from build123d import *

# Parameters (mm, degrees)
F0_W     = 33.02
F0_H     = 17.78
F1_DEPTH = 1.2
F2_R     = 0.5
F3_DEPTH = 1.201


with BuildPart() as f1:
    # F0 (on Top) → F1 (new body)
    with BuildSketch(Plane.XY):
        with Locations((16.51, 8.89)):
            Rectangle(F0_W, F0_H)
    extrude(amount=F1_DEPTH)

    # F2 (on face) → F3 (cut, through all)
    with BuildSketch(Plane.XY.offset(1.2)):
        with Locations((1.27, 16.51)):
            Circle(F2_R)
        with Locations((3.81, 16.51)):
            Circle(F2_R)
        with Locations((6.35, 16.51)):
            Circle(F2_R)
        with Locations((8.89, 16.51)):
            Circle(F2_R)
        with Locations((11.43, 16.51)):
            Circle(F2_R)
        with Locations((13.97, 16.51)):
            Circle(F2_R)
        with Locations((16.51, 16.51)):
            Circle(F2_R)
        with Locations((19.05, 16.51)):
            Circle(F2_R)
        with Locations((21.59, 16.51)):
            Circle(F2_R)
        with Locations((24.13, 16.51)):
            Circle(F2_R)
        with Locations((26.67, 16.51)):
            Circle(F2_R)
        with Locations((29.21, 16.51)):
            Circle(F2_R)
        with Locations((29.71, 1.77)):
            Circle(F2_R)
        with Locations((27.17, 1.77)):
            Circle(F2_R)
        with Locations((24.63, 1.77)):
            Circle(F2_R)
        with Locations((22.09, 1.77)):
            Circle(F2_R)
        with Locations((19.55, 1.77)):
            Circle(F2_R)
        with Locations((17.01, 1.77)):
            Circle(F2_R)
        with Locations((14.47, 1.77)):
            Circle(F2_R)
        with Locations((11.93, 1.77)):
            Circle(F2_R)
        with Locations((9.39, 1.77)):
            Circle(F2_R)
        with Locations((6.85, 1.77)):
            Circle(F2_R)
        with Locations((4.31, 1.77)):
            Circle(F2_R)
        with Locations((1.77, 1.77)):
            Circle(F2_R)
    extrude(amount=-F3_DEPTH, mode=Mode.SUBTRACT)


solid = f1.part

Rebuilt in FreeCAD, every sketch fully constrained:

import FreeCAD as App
import Part
import Sketcher


def add_polygon(sketch, points):
    """Adds a closed chain of lines whose ends are joined by coincident constraints."""
    first, n = sketch.GeometryCount, len(points)
    for a, b in zip(points, points[1:] + points[:1]):
        sketch.addGeometry(Part.LineSegment(App.Vector(*a, 0), App.Vector(*b, 0)), False)
    for i in range(n):
        sketch.addConstraint(Sketcher.Constraint("Coincident", first + i, 2, first + (i + 1) % n, 1))

doc = App.newDocument("Part")
body = doc.addObject("PartDesign::Body", "Body")

# Sketch on XY plane
sketch1 = body.newObject("Sketcher::SketchObject", "Sketch")
sketch1.AttachmentSupport = (doc.getObject("XY_Plane"), [""])
sketch1.MapMode = "FlatFace"
add_polygon(sketch1, [(0, 18), (0, 0), (33, 0), (33, 18)])  # lines 0-3
sketch1.addConstraint([
    Sketcher.Constraint("Vertical", 0),
    Sketcher.Constraint("Horizontal", 1),
    Sketcher.Constraint("Vertical", 2),
    Sketcher.Constraint("Horizontal", 3),
    Sketcher.Constraint("Coincident", 0, 2, -1, 1),
    Sketcher.Constraint("DistanceX", 1, 1, 1, 2, 33.02),
    Sketcher.Constraint("DistanceY", 0, 2, 0, 1, 17.78),
])
pad1 = body.newObject("PartDesign::Pad", "Pad")
pad1.Profile = sketch1
pad1.Length = 1.2

# Sketch on XY plane
sketch2 = body.newObject("Sketcher::SketchObject", "Sketch001")
sketch2.AttachmentSupport = (doc.getObject("XY_Plane"), [""])
sketch2.MapMode = "FlatFace"
sketch2.AttachmentOffset = App.Placement(App.Vector(0, 0, 1.2), App.Rotation())
sketch2.addGeometry([
    Part.Circle(App.Vector(1.3, 16.5, 0), App.Vector(0, 0, 1), 0.5),  # 0
    Part.Circle(App.Vector(3.8, 16.5, 0), App.Vector(0, 0, 1), 0.5),  # 1
    Part.Circle(App.Vector(6.3, 16.5, 0), App.Vector(0, 0, 1), 0.5),  # 2
    Part.Circle(App.Vector(8.9, 16.5, 0), App.Vector(0, 0, 1), 0.5),  # 3
    Part.Circle(App.Vector(11.4, 16.5, 0), App.Vector(0, 0, 1), 0.5),  # 4
    Part.Circle(App.Vector(14, 16.5, 0), App.Vector(0, 0, 1), 0.5),  # 5
    Part.Circle(App.Vector(16.5, 16.5, 0), App.Vector(0, 0, 1), 0.5),  # 6
    Part.Circle(App.Vector(19.1, 16.5, 0), App.Vector(0, 0, 1), 0.5),  # 7
    Part.Circle(App.Vector(21.6, 16.5, 0), App.Vector(0, 0, 1), 0.5),  # 8
    Part.Circle(App.Vector(24.1, 16.5, 0), App.Vector(0, 0, 1), 0.5),  # 9
    Part.Circle(App.Vector(26.7, 16.5, 0), App.Vector(0, 0, 1), 0.5),  # 10
    Part.Circle(App.Vector(29.2, 16.5, 0), App.Vector(0, 0, 1), 0.5),  # 11
    Part.Circle(App.Vector(29.7, 1.8, 0), App.Vector(0, 0, 1), 0.5),  # 12
    Part.Circle(App.Vector(27.2, 1.8, 0), App.Vector(0, 0, 1), 0.5),  # 13
    Part.Circle(App.Vector(24.6, 1.8, 0), App.Vector(0, 0, 1), 0.5),  # 14
    Part.Circle(App.Vector(22.1, 1.8, 0), App.Vector(0, 0, 1), 0.5),  # 15
    Part.Circle(App.Vector(19.6, 1.8, 0), App.Vector(0, 0, 1), 0.5),  # 16
    Part.Circle(App.Vector(17, 1.8, 0), App.Vector(0, 0, 1), 0.5),  # 17
    Part.Circle(App.Vector(14.5, 1.8, 0), App.Vector(0, 0, 1), 0.5),  # 18
    Part.Circle(App.Vector(11.9, 1.8, 0), App.Vector(0, 0, 1), 0.5),  # 19
    Part.Circle(App.Vector(9.4, 1.8, 0), App.Vector(0, 0, 1), 0.5),  # 20
    Part.Circle(App.Vector(6.8, 1.8, 0), App.Vector(0, 0, 1), 0.5),  # 21
    Part.Circle(App.Vector(4.3, 1.8, 0), App.Vector(0, 0, 1), 0.5),  # 22
    Part.Circle(App.Vector(1.8, 1.8, 0), App.Vector(0, 0, 1), 0.5),  # 23
], False)
sketch2.addConstraint([
    Sketcher.Constraint("Equal", 0, 1),
    Sketcher.Constraint("Equal", 1, 2),
    Sketcher.Constraint("Equal", 2, 3),
    Sketcher.Constraint("Equal", 3, 4),
    Sketcher.Constraint("Equal", 4, 5),
    Sketcher.Constraint("Equal", 5, 6),
    Sketcher.Constraint("Equal", 6, 7),
    Sketcher.Constraint("Equal", 7, 8),
    Sketcher.Constraint("Equal", 8, 9),
    Sketcher.Constraint("Equal", 9, 10),
    Sketcher.Constraint("Equal", 10, 11),
    Sketcher.Constraint("Equal", 11, 12),
    Sketcher.Constraint("Equal", 12, 13),
    Sketcher.Constraint("Equal", 13, 14),
    Sketcher.Constraint("Equal", 14, 15),
    Sketcher.Constraint("Equal", 15, 16),
    Sketcher.Constraint("Equal", 16, 17),
    Sketcher.Constraint("Equal", 17, 18),
    Sketcher.Constraint("Equal", 18, 19),
    Sketcher.Constraint("Equal", 19, 20),
    Sketcher.Constraint("Equal", 20, 21),
    Sketcher.Constraint("Equal", 21, 22),
    Sketcher.Constraint("Equal", 22, 23),
    Sketcher.Constraint("Horizontal", 0, 3, 1, 3),
    Sketcher.Constraint("Horizontal", 1, 3, 2, 3),
    Sketcher.Constraint("Horizontal", 2, 3, 3, 3),
    Sketcher.Constraint("Horizontal", 3, 3, 4, 3),
    Sketcher.Constraint("Horizontal", 4, 3, 5, 3),
    Sketcher.Constraint("Horizontal", 5, 3, 6, 3),
    Sketcher.Constraint("Horizontal", 6, 3, 7, 3),
    Sketcher.Constraint("Horizontal", 7, 3, 8, 3),
    Sketcher.Constraint("Horizontal", 8, 3, 9, 3),
    Sketcher.Constraint("Horizontal", 9, 3, 10, 3),
    Sketcher.Constraint("Horizontal", 10, 3, 11, 3),
    Sketcher.Constraint("Horizontal", 12, 3, 13, 3),
    Sketcher.Constraint("Horizontal", 13, 3, 14, 3),
    Sketcher.Constraint("Horizontal", 14, 3, 15, 3),
    Sketcher.Constraint("Horizontal", 15, 3, 16, 3),
    Sketcher.Constraint("Horizontal", 16, 3, 17, 3),
    Sketcher.Constraint("Horizontal", 17, 3, 18, 3),
    Sketcher.Constraint("Horizontal", 18, 3, 19, 3),
    Sketcher.Constraint("Horizontal", 19, 3, 20, 3),
    Sketcher.Constraint("Horizontal", 20, 3, 21, 3),
    Sketcher.Constraint("Horizontal", 21, 3, 22, 3),
    Sketcher.Constraint("Horizontal", 22, 3, 23, 3),
    Sketcher.Constraint("Diameter", 0, 1.0),
    Sketcher.Constraint("DistanceX", 0, 3, 5, 3, 12.7),
    Sketcher.Constraint("DistanceX", 1, 3, 6, 3, 12.7),
    Sketcher.Constraint("DistanceX", 2, 3, 7, 3, 12.7),
    Sketcher.Constraint("DistanceX", 3, 3, 8, 3, 12.7),
    Sketcher.Constraint("DistanceX", 4, 3, 9, 3, 12.7),
    Sketcher.Constraint("DistanceX", 5, 3, 10, 3, 12.7),
    Sketcher.Constraint("DistanceX", 6, 3, 11, 3, 12.7),
    Sketcher.Constraint("DistanceX", 11, 3, 12, 3, 0.5),
    Sketcher.Constraint("DistanceX", 10, 3, 13, 3, 0.5),
    Sketcher.Constraint("DistanceX", 9, 3, 14, 3, 0.5),
    Sketcher.Constraint("DistanceX", 8, 3, 15, 3, 0.5),
    Sketcher.Constraint("DistanceX", 7, 3, 16, 3, 0.5),
    Sketcher.Constraint("DistanceX", 17, 3, 12, 3, 12.7),
    Sketcher.Constraint("DistanceX", 18, 3, 13, 3, 12.7),
    Sketcher.Constraint("DistanceX", 19, 3, 14, 3, 12.7),
    Sketcher.Constraint("DistanceX", 20, 3, 15, 3, 12.7),
    Sketcher.Constraint("DistanceX", 21, 3, 16, 3, 12.7),
    Sketcher.Constraint("DistanceX", 22, 3, 17, 3, 12.7),
    Sketcher.Constraint("DistanceX", 23, 3, 18, 3, 12.7),
    Sketcher.Constraint("DistanceX", -1, 1, 0, 3, 1.27),
    Sketcher.Constraint("DistanceY", -1, 1, 0, 3, 16.51),
    Sketcher.Constraint("DistanceX", -1, 1, 1, 3, 3.81),
    Sketcher.Constraint("DistanceX", -1, 1, 2, 3, 6.35),
    Sketcher.Constraint("DistanceX", -1, 1, 3, 3, 8.89),
    Sketcher.Constraint("DistanceX", -1, 1, 4, 3, 11.43),
    Sketcher.Constraint("DistanceY", -1, 1, 12, 3, 1.77),
])
pocket1 = body.newObject("PartDesign::Pocket", "Pocket")
pocket1.Profile = sketch2
pocket1.Type = "ThroughAll"

doc.recompute()
